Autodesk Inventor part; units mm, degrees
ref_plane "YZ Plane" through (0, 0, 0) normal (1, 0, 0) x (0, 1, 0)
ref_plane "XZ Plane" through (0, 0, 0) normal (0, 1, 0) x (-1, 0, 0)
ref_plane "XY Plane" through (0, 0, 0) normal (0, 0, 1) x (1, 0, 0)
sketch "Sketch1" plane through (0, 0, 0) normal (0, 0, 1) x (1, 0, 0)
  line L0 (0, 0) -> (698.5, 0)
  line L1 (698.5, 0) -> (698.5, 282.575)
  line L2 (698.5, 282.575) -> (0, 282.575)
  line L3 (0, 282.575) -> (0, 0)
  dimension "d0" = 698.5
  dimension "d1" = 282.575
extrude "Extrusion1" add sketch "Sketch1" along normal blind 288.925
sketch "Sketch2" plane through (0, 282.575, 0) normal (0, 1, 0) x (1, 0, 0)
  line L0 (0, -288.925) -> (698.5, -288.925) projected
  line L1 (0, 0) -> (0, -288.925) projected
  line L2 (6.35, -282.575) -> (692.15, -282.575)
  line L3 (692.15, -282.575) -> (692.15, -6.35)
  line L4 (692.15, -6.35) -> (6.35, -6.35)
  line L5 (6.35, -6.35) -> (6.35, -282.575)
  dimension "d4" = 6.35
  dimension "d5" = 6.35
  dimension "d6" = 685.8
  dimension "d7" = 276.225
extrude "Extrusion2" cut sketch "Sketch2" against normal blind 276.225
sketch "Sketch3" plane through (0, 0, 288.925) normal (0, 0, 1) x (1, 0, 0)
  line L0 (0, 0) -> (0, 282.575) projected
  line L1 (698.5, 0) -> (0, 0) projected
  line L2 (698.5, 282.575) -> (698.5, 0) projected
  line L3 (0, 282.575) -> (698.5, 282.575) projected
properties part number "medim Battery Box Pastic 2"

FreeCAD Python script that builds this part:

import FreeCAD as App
import Part
import Sketcher
from FreeCAD import Vector
Q = App.Units.Quantity


def add_polygon(sketch, points):
    """Adds a closed chain of lines whose ends are joined by coincident constraints."""
    first, n = sketch.GeometryCount, len(points)
    for a, b in zip(points, points[1:] + points[:1]):
        sketch.addGeometry(Part.LineSegment(App.Vector(*a, 0), App.Vector(*b, 0)), False)
    for i in range(n):
        sketch.addConstraint(Sketcher.Constraint("Coincident", first + i, 2, first + (i + 1) % n, 1))

doc = App.newDocument("Part")
body = doc.addObject("PartDesign::Body", "Body")

sketch1 = doc.addObject("Sketcher::SketchObject", "Sketch")
body.addObject(sketch1)
sketch1.AttachmentSupport = (doc.XY_Plane, [""])
sketch1.MapMode = "FlatFace"
add_polygon(sketch1, [(0, 283), (0, 0), (698, 0), (698, 283)])
sketch1.addConstraint(Sketcher.Constraint("Vertical", 0))
sketch1.addConstraint(Sketcher.Constraint("Horizontal", 1))
sketch1.addConstraint(Sketcher.Constraint("Vertical", 2))
sketch1.addConstraint(Sketcher.Constraint("Horizontal", 3))
sketch1.addConstraint(Sketcher.Constraint("Coincident", 0, 2, -1, 1))
sketch1.addConstraint(Sketcher.Constraint("DistanceX", 1, 1, 1, 2, Q("27.5 in")))
sketch1.addConstraint(Sketcher.Constraint("DistanceY", 0, 2, 0, 1, Q("11.125 in")))
pad1 = doc.addObject("PartDesign::Pad", "Pad")
body.addObject(pad1)
pad1.Profile = sketch1
pad1.Length = Q("11.375 in")

sketch2 = doc.addObject("Sketcher::SketchObject", "Sketch001")
body.addObject(sketch2)
sketch2.AttachmentSupport = (doc.XZ_Plane, [""])
sketch2.MapMode = "FlatFace"
sketch2.AttachmentOffset = App.Placement(Vector(0, 0, -11.125 * 25.4), App.Rotation())
add_polygon(sketch2, [(6, 6), (6, 283), (692, 283), (692, 6)])
sketch2.addConstraint(Sketcher.Constraint("Vertical", 0))
sketch2.addConstraint(Sketcher.Constraint("Horizontal", 1))
sketch2.addConstraint(Sketcher.Constraint("Vertical", 2))
sketch2.addConstraint(Sketcher.Constraint("Horizontal", 3))
sketch2.addConstraint(Sketcher.Constraint("DistanceX", 1, 1, 1, 2, Q("27 in")))
sketch2.addConstraint(Sketcher.Constraint("DistanceY", 0, 1, 0, 2, Q("10.875 in")))
sketch2.addConstraint(Sketcher.Constraint("DistanceX", -1, 1, 0, 2, Q("0.25 in")))
sketch2.addConstraint(Sketcher.Constraint("DistanceY", -1, 1, 2, 2, Q("0.25 in")))
pocket1 = doc.addObject("PartDesign::Pocket", "Pocket")
body.addObject(pocket1)
pocket1.Profile = sketch2
pocket1.Length = Q("10.875 in")
pocket1.Reversed = True

doc.recompute()
